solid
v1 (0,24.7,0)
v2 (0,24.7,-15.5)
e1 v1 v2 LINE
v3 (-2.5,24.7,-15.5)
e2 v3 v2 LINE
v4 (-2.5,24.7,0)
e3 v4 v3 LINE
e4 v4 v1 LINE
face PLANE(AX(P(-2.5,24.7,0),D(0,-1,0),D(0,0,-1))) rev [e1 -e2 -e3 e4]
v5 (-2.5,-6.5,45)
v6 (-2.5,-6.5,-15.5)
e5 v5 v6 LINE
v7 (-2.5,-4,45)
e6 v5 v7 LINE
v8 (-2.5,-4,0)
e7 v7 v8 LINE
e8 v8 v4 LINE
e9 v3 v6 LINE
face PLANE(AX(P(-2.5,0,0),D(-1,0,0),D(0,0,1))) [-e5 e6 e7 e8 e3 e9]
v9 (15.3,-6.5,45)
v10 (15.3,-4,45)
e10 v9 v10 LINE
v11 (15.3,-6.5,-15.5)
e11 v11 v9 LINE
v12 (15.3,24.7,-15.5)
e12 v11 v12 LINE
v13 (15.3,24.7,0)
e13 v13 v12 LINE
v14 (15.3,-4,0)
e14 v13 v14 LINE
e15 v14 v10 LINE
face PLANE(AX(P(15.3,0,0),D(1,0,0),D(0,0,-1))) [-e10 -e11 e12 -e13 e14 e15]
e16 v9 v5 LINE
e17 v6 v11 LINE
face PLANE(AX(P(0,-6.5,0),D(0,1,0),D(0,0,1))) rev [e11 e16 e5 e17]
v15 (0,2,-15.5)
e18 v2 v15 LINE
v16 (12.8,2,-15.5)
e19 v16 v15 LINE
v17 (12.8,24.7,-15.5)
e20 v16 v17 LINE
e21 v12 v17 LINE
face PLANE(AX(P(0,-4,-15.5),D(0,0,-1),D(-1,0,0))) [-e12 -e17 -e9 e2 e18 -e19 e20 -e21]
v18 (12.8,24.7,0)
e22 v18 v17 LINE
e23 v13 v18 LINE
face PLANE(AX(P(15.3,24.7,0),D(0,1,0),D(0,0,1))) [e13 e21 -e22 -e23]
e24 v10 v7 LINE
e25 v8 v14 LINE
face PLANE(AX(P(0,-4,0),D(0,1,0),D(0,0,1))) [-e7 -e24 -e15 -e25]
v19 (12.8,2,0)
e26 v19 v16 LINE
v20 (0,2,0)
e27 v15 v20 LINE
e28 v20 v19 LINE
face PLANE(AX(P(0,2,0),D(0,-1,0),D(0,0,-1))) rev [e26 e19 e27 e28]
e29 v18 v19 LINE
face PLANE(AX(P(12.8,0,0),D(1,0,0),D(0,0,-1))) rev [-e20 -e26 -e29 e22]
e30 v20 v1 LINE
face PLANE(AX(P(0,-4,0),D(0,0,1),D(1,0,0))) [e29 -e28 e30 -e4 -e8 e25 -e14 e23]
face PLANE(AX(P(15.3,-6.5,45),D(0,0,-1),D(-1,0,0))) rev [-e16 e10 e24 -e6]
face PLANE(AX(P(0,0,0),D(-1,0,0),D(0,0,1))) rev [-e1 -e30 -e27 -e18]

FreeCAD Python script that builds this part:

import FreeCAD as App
import Part
import Sketcher

doc = App.newDocument("Part")
body = doc.addObject("PartDesign::Body", "Body")

sketch1 = doc.addObject("Sketcher::SketchObject", "Sketch")
body.addObject(sketch1)
sketch1.AttachmentSupport = (doc.XZ_Plane, [""])
sketch1.MapMode = "FlatFace"
sketch1.addGeometry([
    Part.LineSegment(App.Vector(0, -16, 0), App.Vector(0, 0, 0)),
    Part.LineSegment(App.Vector(0, 0, 0), App.Vector(13, 0, 0)),
    Part.LineSegment(App.Vector(13, 0, 0), App.Vector(13, -16, 0)),
    Part.LineSegment(App.Vector(13, -16, 0), App.Vector(0, -16, 0)),
], False)
sketch1.addConstraint([
    Sketcher.Constraint("Coincident", 0, 2, 1, 1),
    Sketcher.Constraint("Coincident", 1, 2, 2, 1),
    Sketcher.Constraint("Coincident", 2, 2, 3, 1),
    Sketcher.Constraint("Coincident", 3, 2, 0, 1),
    Sketcher.Constraint("Vertical", 0),
    Sketcher.Constraint("Horizontal", 1),
    Sketcher.Constraint("Vertical", 2),
    Sketcher.Constraint("Horizontal", 3),
    Sketcher.Constraint("Coincident", 0, 2, -1, 1),
    Sketcher.Constraint("DistanceX", 1, 1, 1, 2, 12.8),
    Sketcher.Constraint("DistanceY", 0, 1, 0, 2, 15.5),
])
pad1 = doc.addObject("PartDesign::Pad", "Pad")
body.addObject(pad1)
pad1.Profile = sketch1
pad1.Type = "TwoLengths"
pad1.Length = 2
pad1.Length2 = 4
pad1.Reversed = True

sketch2 = doc.addObject("Sketcher::SketchObject", "Sketch001")
body.addObject(sketch2)
sketch2.AttachmentSupport = (doc.YZ_Plane, [""])
sketch2.MapMode = "FlatFace"
sketch2.AttachmentOffset = App.Placement(App.Vector(0, 0, 12.8), App.Rotation())
sketch2.addGeometry([
    Part.LineSegment(App.Vector(-4, 0, 0), App.Vector(-4, -16, 0)),
    Part.LineSegment(App.Vector(-4, -16, 0), App.Vector(25, -16, 0)),
    Part.LineSegment(App.Vector(25, -16, 0), App.Vector(25, 0, 0)),
    Part.LineSegment(App.Vector(25, 0, 0), App.Vector(-4, 0, 0)),
], False)
sketch2.addConstraint([
    Sketcher.Constraint("Coincident", 0, 2, 1, 1),
    Sketcher.Constraint("Coincident", 1, 2, 2, 1),
    Sketcher.Constraint("Coincident", 2, 2, 3, 1),
    Sketcher.Constraint("Coincident", 3, 2, 0, 1),
    Sketcher.Constraint("Vertical", 0),
    Sketcher.Constraint("Horizontal", 1),
    Sketcher.Constraint("Vertical", 2),
    Sketcher.Constraint("Horizontal", 3),
    Sketcher.Constraint("PointOnObject", 2, 2, -1),
    Sketcher.Constraint("DistanceX", 1, 1, 1, 2, 28.7),
    Sketcher.Constraint("DistanceY", 0, 2, 0, 1, 15.5),
    Sketcher.Constraint("DistanceX", 0, 2, -1, 1, 4.0),
])
pad2 = doc.addObject("PartDesign::Pad", "Pad001")
body.addObject(pad2)
pad2.Profile = sketch2
pad2.Length = 2.5

sketch3 = doc.addObject("Sketcher::SketchObject", "Sketch002")
body.addObject(sketch3)
sketch3.AttachmentSupport = (doc.YZ_Plane, [""])
sketch3.MapMode = "FlatFace"
sketch3.addGeometry([
    Part.LineSegment(App.Vector(25, 0, 0), App.Vector(25, -16, 0)),
    Part.LineSegment(App.Vector(25, -16, 0), App.Vector(-4, -16, 0)),
    Part.LineSegment(App.Vector(-4, -16, 0), App.Vector(-4, 0, 0)),
    Part.LineSegment(App.Vector(-4, 0, 0), App.Vector(25, 0, 0)),
], False)
sketch3.addConstraint([
    Sketcher.Constraint("Coincident", 0, 2, 1, 1),
    Sketcher.Constraint("Coincident", 1, 2, 2, 1),
    Sketcher.Constraint("Coincident", 2, 2, 3, 1),
    Sketcher.Constraint("Coincident", 3, 2, 0, 1),
    Sketcher.Constraint("Vertical", 0),
    Sketcher.Constraint("Horizontal", 1),
    Sketcher.Constraint("Vertical", 2),
    Sketcher.Constraint("Horizontal", 3),
    Sketcher.Constraint("PointOnObject", 2, 2, -1),
    Sketcher.Constraint("DistanceX", 1, 2, 1, 1, 28.7),
    Sketcher.Constraint("DistanceY", 0, 2, 0, 1, 15.5),
    Sketcher.Constraint("DistanceX", 1, 2, -1, 1, 4.0),
])
pad3 = doc.addObject("PartDesign::Pad", "Pad002")
body.addObject(pad3)
pad3.Profile = sketch3
pad3.Length = 2.5
pad3.Reversed = True

sketch4 = doc.addObject("Sketcher::SketchObject", "Sketch003")
body.addObject(sketch4)
sketch4.AttachmentSupport = (doc.XZ_Plane, [""])
sketch4.MapMode = "FlatFace"
sketch4.AttachmentOffset = App.Placement(App.Vector(0, 0, 4), App.Rotation())
sketch4.addGeometry([
    Part.LineSegment(App.Vector(-2, 45, 0), App.Vector(-2, -16, 0)),
    Part.LineSegment(App.Vector(-2, -16, 0), App.Vector(15, -16, 0)),
    Part.LineSegment(App.Vector(15, -16, 0), App.Vector(15, 45, 0)),
    Part.LineSegment(App.Vector(15, 45, 0), App.Vector(-2, 45, 0)),
], False)
sketch4.addConstraint([
    Sketcher.Constraint("Coincident", 0, 2, 1, 1),
    Sketcher.Constraint("Coincident", 1, 2, 2, 1),
    Sketcher.Constraint("Coincident", 2, 2, 3, 1),
    Sketcher.Constraint("Coincident", 3, 2, 0, 1),
    Sketcher.Constraint("Vertical", 0),
    Sketcher.Constraint("Horizontal", 1),
    Sketcher.Constraint("Vertical", 2),
    Sketcher.Constraint("Horizontal", 3),
    Sketcher.Constraint("DistanceX", 1, 1, 1, 2, 17.8),
    Sketcher.Constraint("DistanceY", 0, 2, 0, 1, 60.5),
    Sketcher.Constraint("DistanceY", -1, 1, 2, 2, 45.0),
    Sketcher.Constraint("DistanceX", 0, 2, -1, 1, 2.5),
])
pad4 = doc.addObject("PartDesign::Pad", "Pad003")
body.addObject(pad4)
pad4.Profile = sketch4
pad4.Length = 2.5

doc.recompute()
